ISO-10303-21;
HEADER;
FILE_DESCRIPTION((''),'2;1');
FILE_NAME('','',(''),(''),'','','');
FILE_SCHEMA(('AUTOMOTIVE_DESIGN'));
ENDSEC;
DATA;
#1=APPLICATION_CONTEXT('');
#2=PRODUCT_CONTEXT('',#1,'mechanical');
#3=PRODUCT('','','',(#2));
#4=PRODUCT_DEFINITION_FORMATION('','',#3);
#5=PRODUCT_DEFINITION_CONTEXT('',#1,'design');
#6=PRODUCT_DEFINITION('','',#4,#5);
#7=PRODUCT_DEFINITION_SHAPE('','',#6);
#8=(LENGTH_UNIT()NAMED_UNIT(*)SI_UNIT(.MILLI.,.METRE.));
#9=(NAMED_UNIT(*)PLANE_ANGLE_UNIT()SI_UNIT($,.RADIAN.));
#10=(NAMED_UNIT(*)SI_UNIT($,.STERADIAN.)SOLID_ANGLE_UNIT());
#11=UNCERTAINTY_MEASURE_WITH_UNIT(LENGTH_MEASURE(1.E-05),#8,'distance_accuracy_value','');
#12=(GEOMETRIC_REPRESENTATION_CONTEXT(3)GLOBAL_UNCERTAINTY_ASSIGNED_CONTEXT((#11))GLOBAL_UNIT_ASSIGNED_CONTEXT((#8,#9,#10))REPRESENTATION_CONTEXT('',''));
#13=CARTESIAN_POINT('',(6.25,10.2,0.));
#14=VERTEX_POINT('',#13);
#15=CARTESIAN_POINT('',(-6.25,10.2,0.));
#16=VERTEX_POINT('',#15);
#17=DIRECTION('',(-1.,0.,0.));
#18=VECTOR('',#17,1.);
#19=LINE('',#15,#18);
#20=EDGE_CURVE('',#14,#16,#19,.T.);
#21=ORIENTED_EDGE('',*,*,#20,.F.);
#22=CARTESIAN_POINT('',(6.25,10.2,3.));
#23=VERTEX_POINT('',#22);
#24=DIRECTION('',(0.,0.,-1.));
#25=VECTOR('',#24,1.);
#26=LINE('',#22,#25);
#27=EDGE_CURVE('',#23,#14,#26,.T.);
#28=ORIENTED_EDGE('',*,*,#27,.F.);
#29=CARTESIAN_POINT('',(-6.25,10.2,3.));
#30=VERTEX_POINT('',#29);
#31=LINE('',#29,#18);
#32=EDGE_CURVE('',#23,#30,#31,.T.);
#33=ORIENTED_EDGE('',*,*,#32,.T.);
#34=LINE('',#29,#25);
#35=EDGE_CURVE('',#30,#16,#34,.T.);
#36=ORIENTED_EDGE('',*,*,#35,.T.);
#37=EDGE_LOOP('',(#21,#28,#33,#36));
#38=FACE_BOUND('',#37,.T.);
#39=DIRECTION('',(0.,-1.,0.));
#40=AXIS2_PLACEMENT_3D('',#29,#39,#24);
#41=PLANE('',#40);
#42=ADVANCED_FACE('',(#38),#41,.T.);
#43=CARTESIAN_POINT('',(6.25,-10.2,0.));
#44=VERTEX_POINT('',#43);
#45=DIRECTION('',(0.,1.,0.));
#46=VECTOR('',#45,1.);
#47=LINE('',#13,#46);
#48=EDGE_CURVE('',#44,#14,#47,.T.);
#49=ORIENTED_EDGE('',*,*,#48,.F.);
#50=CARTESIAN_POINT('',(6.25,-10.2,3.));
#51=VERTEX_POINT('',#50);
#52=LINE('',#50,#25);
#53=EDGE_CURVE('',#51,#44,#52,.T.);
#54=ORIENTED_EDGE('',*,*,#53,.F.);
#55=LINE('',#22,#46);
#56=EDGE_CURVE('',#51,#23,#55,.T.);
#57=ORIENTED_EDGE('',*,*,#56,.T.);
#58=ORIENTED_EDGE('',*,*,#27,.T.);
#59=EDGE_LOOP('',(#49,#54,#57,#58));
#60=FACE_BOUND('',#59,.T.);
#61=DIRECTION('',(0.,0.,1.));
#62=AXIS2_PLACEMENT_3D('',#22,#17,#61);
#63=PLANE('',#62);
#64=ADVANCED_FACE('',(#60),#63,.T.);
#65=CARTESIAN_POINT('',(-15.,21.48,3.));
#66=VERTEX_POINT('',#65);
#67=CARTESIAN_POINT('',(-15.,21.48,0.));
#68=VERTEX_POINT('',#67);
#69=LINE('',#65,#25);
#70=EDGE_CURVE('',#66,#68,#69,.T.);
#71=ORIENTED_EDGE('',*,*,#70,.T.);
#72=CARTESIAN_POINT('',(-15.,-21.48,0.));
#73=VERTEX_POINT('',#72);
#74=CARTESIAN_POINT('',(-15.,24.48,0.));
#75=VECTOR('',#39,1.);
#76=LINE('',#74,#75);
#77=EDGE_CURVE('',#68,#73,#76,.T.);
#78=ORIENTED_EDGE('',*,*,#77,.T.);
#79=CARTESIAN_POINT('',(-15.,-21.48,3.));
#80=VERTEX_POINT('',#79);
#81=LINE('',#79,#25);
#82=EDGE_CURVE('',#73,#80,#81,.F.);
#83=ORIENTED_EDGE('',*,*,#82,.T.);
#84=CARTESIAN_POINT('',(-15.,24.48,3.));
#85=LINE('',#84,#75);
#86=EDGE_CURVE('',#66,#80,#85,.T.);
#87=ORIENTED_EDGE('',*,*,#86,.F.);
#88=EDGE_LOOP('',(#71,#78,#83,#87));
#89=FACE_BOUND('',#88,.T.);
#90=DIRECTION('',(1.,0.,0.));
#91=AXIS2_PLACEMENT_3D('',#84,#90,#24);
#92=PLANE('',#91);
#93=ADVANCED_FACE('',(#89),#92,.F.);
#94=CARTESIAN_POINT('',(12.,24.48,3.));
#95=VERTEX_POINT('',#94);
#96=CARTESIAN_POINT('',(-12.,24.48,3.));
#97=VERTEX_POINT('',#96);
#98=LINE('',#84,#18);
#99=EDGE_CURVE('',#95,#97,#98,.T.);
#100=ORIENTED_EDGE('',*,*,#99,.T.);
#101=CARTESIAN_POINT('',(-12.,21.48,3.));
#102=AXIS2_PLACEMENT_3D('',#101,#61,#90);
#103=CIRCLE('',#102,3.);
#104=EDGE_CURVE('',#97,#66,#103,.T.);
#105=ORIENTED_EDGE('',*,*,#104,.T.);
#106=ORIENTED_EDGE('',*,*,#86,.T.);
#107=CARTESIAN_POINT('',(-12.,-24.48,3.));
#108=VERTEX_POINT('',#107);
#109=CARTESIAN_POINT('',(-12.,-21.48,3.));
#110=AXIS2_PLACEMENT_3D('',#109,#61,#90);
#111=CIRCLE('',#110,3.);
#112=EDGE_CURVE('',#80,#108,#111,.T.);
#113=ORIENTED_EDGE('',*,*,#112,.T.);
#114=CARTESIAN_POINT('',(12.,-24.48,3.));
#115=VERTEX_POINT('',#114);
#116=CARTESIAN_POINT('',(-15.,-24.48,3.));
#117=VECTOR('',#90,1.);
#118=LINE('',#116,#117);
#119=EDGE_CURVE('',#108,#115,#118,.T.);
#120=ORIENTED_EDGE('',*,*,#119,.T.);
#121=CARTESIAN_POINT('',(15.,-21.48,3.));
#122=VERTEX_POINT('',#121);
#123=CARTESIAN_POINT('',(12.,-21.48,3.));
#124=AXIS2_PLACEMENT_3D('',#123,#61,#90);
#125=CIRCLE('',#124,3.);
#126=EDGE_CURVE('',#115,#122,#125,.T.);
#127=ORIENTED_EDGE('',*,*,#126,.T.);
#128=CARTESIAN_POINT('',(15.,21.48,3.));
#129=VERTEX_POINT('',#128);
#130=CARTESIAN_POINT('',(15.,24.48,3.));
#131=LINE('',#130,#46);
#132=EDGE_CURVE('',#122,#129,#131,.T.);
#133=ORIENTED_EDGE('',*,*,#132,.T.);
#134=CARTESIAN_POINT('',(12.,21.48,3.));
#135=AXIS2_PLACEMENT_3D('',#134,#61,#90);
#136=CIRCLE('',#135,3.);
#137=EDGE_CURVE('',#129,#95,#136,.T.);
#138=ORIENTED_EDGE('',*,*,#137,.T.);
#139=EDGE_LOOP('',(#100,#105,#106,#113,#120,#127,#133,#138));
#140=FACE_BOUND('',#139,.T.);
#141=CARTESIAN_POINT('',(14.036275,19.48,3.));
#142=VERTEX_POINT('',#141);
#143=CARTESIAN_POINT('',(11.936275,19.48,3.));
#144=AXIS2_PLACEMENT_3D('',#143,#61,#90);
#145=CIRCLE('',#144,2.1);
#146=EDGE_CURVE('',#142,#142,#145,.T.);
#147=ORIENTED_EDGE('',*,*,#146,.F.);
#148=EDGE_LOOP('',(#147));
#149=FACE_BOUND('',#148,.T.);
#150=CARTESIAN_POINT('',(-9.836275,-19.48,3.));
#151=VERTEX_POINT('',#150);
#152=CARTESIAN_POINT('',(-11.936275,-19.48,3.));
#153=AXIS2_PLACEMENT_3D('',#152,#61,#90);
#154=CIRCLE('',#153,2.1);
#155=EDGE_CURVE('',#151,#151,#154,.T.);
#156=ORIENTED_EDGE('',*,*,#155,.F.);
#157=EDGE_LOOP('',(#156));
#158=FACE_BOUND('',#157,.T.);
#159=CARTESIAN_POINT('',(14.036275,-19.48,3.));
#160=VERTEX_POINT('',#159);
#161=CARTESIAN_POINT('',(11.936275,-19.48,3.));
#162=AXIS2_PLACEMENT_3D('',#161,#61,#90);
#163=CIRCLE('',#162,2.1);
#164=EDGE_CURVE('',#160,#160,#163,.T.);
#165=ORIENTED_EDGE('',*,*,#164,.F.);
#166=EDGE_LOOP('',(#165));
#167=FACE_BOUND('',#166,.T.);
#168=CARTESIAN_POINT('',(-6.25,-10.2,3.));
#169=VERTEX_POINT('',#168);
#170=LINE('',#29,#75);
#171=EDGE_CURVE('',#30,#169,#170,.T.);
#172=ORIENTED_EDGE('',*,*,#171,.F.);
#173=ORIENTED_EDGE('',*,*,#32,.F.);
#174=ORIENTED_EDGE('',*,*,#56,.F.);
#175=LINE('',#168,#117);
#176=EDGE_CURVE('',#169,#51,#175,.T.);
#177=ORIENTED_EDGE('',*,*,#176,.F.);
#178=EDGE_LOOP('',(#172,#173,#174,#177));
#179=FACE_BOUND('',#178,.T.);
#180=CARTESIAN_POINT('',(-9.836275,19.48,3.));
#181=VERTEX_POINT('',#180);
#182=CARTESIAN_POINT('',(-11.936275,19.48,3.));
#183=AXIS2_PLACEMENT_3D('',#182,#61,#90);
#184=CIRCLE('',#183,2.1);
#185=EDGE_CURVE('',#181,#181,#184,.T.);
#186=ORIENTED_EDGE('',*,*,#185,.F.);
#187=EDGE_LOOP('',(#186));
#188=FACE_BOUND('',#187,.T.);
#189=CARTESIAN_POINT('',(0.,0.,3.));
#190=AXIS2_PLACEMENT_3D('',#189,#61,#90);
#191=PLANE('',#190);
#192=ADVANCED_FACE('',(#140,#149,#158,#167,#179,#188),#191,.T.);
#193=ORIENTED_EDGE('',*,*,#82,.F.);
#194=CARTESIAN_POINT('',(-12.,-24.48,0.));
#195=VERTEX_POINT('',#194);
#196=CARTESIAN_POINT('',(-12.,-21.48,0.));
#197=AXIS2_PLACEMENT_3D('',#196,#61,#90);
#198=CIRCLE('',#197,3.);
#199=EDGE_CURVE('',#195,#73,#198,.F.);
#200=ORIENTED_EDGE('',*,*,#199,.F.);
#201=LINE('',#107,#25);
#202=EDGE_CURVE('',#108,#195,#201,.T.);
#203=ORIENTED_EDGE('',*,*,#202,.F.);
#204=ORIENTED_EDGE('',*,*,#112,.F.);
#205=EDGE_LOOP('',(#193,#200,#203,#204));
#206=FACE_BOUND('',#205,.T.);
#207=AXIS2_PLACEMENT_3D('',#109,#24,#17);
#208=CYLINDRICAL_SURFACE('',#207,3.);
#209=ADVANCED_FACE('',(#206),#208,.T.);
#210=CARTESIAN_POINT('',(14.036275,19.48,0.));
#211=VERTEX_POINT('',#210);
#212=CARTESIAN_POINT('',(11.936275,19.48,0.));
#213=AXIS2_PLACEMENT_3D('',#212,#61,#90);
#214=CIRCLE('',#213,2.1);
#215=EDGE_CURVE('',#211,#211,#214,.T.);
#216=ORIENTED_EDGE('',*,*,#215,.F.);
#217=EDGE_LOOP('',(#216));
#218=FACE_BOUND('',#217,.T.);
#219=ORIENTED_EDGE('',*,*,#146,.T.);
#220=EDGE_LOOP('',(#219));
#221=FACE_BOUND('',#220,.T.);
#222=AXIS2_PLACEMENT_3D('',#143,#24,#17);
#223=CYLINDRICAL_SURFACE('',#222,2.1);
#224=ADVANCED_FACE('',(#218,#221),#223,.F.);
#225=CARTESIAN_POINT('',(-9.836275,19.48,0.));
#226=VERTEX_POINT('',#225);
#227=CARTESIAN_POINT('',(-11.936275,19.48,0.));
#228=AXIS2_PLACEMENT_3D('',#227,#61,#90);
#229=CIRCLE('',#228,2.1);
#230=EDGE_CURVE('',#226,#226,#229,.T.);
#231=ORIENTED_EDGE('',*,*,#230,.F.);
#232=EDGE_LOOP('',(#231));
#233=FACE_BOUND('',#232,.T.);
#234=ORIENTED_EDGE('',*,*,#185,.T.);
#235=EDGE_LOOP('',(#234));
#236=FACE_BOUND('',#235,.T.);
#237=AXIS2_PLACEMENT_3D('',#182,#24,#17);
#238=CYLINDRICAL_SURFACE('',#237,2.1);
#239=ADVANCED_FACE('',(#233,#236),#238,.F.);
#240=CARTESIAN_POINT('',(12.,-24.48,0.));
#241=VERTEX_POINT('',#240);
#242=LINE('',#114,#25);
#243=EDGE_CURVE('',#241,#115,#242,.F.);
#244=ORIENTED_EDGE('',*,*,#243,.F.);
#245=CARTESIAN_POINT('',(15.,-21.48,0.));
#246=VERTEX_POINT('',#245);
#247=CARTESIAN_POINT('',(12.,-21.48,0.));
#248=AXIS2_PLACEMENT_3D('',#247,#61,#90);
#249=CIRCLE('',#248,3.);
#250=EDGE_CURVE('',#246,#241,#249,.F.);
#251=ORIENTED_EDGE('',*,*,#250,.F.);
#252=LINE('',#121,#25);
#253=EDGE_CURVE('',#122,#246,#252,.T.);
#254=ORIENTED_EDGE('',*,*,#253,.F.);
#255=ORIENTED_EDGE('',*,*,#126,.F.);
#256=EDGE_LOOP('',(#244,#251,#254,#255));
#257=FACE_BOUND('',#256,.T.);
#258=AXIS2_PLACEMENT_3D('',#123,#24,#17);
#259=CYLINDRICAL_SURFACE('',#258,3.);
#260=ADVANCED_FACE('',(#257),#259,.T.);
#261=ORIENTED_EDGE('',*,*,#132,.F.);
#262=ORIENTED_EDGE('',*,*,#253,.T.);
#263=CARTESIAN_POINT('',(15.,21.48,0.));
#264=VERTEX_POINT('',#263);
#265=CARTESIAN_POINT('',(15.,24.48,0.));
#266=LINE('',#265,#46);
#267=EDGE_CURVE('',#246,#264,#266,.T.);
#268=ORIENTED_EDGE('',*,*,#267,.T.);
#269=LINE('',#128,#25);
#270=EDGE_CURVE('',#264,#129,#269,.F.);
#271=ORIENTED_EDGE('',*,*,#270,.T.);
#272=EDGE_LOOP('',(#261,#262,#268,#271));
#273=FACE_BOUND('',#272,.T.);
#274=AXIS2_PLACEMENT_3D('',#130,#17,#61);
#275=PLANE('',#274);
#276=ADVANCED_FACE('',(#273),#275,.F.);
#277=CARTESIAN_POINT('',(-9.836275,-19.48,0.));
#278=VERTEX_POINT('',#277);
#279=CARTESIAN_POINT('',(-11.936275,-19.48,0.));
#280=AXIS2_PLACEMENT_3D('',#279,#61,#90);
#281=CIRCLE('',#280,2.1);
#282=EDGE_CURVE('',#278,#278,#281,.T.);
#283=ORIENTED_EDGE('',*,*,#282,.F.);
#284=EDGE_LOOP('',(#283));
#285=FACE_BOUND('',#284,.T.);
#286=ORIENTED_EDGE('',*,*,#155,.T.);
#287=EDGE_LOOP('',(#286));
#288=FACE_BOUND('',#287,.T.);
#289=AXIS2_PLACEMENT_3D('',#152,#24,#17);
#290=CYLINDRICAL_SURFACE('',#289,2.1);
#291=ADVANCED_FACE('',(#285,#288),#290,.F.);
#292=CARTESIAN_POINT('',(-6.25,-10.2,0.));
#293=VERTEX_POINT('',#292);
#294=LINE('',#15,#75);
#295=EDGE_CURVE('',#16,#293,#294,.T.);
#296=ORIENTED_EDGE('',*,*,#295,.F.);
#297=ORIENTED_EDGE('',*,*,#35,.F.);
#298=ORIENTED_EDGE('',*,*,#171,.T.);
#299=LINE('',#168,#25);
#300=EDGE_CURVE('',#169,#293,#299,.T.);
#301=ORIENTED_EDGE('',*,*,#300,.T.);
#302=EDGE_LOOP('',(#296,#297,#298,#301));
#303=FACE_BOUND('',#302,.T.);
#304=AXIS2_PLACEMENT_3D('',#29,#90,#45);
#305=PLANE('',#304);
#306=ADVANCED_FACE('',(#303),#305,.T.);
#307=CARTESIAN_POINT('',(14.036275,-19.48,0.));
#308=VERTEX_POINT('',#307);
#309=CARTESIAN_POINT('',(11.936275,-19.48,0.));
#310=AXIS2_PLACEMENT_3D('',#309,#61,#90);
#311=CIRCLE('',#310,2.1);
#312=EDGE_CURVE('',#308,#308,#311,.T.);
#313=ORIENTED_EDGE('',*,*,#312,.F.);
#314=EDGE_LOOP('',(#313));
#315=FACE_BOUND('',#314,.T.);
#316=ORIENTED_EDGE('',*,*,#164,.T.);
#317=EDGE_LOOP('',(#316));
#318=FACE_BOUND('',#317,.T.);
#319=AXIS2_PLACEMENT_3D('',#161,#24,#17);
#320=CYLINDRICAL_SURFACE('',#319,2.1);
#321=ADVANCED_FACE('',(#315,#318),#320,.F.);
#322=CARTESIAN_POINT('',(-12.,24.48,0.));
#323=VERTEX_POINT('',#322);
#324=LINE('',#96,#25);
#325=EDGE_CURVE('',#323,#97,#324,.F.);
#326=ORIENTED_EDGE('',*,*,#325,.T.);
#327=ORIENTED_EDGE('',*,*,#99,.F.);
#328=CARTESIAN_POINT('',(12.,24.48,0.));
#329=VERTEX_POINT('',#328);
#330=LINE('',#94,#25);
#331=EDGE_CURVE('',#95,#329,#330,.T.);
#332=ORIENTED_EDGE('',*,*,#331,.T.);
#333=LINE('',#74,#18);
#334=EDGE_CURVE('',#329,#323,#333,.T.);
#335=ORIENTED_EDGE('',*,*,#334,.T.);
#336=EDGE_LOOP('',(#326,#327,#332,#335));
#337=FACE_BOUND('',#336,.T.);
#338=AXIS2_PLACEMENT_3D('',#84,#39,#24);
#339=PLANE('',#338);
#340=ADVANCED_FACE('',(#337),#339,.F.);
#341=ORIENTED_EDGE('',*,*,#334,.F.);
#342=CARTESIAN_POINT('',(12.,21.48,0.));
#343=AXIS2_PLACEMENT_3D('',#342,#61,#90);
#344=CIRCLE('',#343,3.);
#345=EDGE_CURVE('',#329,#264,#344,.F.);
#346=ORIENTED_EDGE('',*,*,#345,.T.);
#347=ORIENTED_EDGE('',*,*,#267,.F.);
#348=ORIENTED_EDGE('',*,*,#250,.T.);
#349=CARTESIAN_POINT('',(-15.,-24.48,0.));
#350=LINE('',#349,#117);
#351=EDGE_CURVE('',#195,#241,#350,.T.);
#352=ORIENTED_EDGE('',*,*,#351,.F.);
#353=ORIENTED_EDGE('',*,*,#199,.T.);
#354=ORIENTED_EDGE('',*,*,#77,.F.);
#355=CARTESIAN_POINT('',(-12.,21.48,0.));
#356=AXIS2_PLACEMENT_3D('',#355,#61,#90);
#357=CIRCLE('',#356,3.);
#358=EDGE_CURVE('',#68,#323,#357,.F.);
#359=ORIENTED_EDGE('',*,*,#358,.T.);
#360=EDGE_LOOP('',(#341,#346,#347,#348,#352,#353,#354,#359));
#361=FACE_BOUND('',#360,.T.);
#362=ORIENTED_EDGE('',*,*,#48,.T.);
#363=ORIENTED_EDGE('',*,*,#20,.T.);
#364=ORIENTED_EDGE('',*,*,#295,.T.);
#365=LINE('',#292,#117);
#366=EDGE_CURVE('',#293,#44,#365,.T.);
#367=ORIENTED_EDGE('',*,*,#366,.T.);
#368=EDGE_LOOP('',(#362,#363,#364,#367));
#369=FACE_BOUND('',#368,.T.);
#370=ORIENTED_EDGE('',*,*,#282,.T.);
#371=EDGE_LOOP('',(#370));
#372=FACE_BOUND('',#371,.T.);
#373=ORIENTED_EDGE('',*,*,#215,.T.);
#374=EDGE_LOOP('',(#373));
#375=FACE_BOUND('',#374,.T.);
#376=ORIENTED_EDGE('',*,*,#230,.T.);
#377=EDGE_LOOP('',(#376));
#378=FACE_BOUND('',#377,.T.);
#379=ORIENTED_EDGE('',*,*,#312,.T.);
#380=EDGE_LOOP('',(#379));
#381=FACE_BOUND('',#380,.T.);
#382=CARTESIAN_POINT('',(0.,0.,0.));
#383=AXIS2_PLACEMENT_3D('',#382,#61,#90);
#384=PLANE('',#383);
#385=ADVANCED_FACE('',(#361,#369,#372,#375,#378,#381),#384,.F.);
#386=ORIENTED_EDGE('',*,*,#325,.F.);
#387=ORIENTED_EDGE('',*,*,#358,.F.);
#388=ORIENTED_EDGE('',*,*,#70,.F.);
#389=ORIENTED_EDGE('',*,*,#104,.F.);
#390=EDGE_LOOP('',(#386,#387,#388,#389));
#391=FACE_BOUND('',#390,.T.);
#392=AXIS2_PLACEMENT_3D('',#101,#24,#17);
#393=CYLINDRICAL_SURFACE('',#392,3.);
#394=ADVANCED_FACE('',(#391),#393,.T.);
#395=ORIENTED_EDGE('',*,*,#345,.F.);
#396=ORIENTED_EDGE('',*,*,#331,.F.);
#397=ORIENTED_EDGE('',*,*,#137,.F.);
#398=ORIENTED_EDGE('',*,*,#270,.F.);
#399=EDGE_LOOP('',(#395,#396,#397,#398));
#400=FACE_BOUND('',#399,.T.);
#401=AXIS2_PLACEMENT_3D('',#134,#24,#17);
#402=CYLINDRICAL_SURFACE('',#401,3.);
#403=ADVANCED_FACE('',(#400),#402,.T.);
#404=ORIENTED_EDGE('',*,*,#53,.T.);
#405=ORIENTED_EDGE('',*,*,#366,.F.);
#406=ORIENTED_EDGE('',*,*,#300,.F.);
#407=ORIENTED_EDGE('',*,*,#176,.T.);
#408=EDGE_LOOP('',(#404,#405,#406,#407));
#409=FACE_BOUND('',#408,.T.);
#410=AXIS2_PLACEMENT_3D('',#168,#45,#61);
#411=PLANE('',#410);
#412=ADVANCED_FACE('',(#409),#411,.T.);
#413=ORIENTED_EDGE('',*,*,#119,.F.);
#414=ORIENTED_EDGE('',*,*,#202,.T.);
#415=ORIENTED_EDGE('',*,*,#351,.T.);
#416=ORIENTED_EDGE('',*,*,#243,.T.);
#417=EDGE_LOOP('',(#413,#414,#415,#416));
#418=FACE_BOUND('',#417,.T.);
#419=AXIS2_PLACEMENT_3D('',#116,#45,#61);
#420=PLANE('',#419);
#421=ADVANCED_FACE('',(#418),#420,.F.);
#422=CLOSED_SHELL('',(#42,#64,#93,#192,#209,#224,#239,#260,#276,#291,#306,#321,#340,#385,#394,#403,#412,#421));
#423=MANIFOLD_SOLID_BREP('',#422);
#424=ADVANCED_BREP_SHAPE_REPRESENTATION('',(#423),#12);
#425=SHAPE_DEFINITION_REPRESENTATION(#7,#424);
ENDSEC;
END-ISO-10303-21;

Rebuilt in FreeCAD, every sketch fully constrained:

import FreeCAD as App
import Part
import Sketcher


def edges_at(feature, points):
    """Names of the edges that pass closest to the given points."""
    edges = feature.Shape.Edges
    near = lambda p: min(range(len(edges)), key=lambda i: edges[i].distToShape(Part.Vertex(*p))[0])
    return sorted({f"Edge{near(p) + 1}" for p in points})

doc = App.newDocument("Part")
params = doc.addObject("Spreadsheet::Sheet", "Params")
for row, (alias, value) in enumerate([
    ("sketch1_diameter", "4.2 mm"),
    ("sketch1_width", "30 mm"),
    ("sketch1_width2", "12.5 mm"),
    ("sketch1_height", "20.4 mm"),
    ("sketch1_height2", "48.96 mm"),
    ("pad1_length", "3 mm"),
    ("fillet_radius", "3 mm"),
], start=1):
    params.set(f"A{row}", alias)
    params.set(f"B{row}", "=" + value)
    params.setAlias(f"B{row}", alias)

body = doc.addObject("PartDesign::Body", "Body")

# Sketch on XY plane
sketch1 = body.newObject("Sketcher::SketchObject", "Sketch")
sketch1.AttachmentSupport = (doc.getObject("XY_Plane"), [""])
sketch1.MapMode = "FlatFace"
sketch1.addGeometry([
    Part.LineSegment(App.Vector(-15, 24.5, 0), App.Vector(-15, -24.5, 0)),  # 0
    Part.LineSegment(App.Vector(-15, -24.5, 0), App.Vector(15, -24.5, 0)),  # 1
    Part.LineSegment(App.Vector(15, -24.5, 0), App.Vector(15, 24.5, 0)),  # 2
    Part.LineSegment(App.Vector(15, 24.5, 0), App.Vector(-15, 24.5, 0)),  # 3
    Part.Circle(App.Vector(-11.9, -19.5, 0), App.Vector(0, 0, 1), 2.1),  # 4
    Part.Circle(App.Vector(11.9, -19.5, 0), App.Vector(0, 0, 1), 2.1),  # 5
    Part.Circle(App.Vector(-11.9, 19.5, 0), App.Vector(0, 0, 1), 2.1),  # 6
    Part.LineSegment(App.Vector(6.2, -10.2, 0), App.Vector(-6.2, -10.2, 0)),  # 7
    Part.LineSegment(App.Vector(-6.2, -10.2, 0), App.Vector(-6.2, 10.2, 0)),  # 8
    Part.LineSegment(App.Vector(-6.2, 10.2, 0), App.Vector(6.2, 10.2, 0)),  # 9
    Part.LineSegment(App.Vector(6.2, 10.2, 0), App.Vector(6.2, -10.2, 0)),  # 10
    Part.Circle(App.Vector(11.9, 19.5, 0), App.Vector(0, 0, 1), 2.1),  # 11
], False)
sketch1.addConstraint([
    Sketcher.Constraint("Coincident", 0, 2, 1, 1),
    Sketcher.Constraint("Coincident", 1, 2, 2, 1),
    Sketcher.Constraint("Coincident", 2, 2, 3, 1),
    Sketcher.Constraint("Coincident", 3, 2, 0, 1),
    Sketcher.Constraint("Coincident", 7, 2, 8, 1),
    Sketcher.Constraint("Coincident", 8, 2, 9, 1),
    Sketcher.Constraint("Coincident", 9, 2, 10, 1),
    Sketcher.Constraint("Coincident", 10, 2, 7, 1),
    Sketcher.Constraint("Vertical", 0),
    Sketcher.Constraint("Horizontal", 1),
    Sketcher.Constraint("Vertical", 2),
    Sketcher.Constraint("Horizontal", 3),
    Sketcher.Constraint("Horizontal", 7),
    Sketcher.Constraint("Vertical", 8),
    Sketcher.Constraint("Horizontal", 9),
    Sketcher.Constraint("Vertical", 10),
    Sketcher.Constraint("Equal", 4, 5),
    Sketcher.Constraint("Equal", 5, 6),
    Sketcher.Constraint("Equal", 6, 11),
    Sketcher.Constraint("Symmetric", 5, 3, 6, 3, -1, 1),
    Sketcher.Constraint("Symmetric", 4, 3, 11, 3, -1, 1),
    Sketcher.Constraint("Symmetric", 0, 2, 2, 2, -1, 1),
    Sketcher.Constraint("Symmetric", 7, 2, 9, 2, -1, 1),
    Sketcher.Constraint("Symmetric", 4, 3, 5, 3, -2),
    Sketcher.Constraint("Diameter", 4, 4.2),
    Sketcher.Constraint("DistanceX", 1, 1, 1, 2, 30.0),
    Sketcher.Constraint("DistanceX", 7, 2, 7, 1, 12.5),
    Sketcher.Constraint("DistanceY", 8, 1, 8, 2, 20.4),
    Sketcher.Constraint("DistanceY", 0, 2, 4, 3, 5.0),
    Sketcher.Constraint("DistanceY", 0, 2, 0, 1, 48.96),
    Sketcher.Constraint("DistanceX", 4, 3, 5, 3, 23.872549),
])
sketch1.setExpression("Constraints[24]", "Params.sketch1_diameter")
sketch1.setExpression("Constraints[25]", "Params.sketch1_width")
sketch1.setExpression("Constraints[26]", "Params.sketch1_width2")
sketch1.setExpression("Constraints[27]", "Params.sketch1_height")
sketch1.setExpression("Constraints[29]", "Params.sketch1_height2")
pad1 = body.newObject("PartDesign::Pad", "Pad")
pad1.Profile = sketch1
pad1.setExpression("Length", "Params.pad1_length")
doc.recompute()

fillet = body.newObject("PartDesign::Fillet", "Fillet")
fillet.Base = (pad1, edges_at(pad1, [
    (15, -24.48, 1.5),
    (-15, -24.48, 1.5),
    (-15, 24.48, 1.5),
    (15, 24.48, 1.5),
]))
fillet.setExpression("Radius", "Params.fillet_radius")

doc.recompute()
